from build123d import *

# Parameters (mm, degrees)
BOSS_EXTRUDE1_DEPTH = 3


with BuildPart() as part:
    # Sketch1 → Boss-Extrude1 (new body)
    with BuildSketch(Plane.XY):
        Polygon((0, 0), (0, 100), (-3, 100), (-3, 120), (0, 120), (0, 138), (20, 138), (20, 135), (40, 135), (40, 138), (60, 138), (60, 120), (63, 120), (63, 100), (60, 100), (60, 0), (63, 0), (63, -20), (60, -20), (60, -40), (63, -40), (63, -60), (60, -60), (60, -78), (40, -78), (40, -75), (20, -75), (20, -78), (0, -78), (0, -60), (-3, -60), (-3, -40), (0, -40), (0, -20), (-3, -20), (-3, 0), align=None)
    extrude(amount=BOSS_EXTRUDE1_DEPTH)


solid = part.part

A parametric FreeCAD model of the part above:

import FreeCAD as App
import Part
import Sketcher
from FreeCAD import Vector


def add_polygon(sketch, points):
    """Adds a closed chain of lines whose ends are joined by coincident constraints."""
    first, n = sketch.GeometryCount, len(points)
    for a, b in zip(points, points[1:] + points[:1]):
        sketch.addGeometry(Part.LineSegment(App.Vector(*a, 0), App.Vector(*b, 0)), False)
    for i in range(n):
        sketch.addConstraint(Sketcher.Constraint("Coincident", first + i, 2, first + (i + 1) % n, 1))

doc = App.newDocument("Part")
body = doc.addObject("PartDesign::Body", "Body")

sketch1 = doc.addObject("Sketcher::SketchObject", "Sketch")
body.addObject(sketch1)
sketch1.AttachmentSupport = (doc.XY_Plane, [""])
sketch1.MapMode = "FlatFace"
add_polygon(sketch1, [(0, 100), (0, 0), (-3, 0), (-3, -20), (0, -20), (0, -40), (-3, -40), (-3, -60), (0, -60), (0, -78), (20, -78), (20, -75), (40, -75), (40, -78), (60, -78), (60, -60), (63, -60), (63, -40), (60, -40), (60, -20), (63, -20), (63, 0), (60, 0), (60, 100), (63, 100), (63, 120), (60, 120), (60, 138), (40, 138), (40, 135), (20, 135), (20, 138), (0, 138), (0, 120), (-3, 120), (-3, 100)])
sketch1.addConstraint([
    Sketcher.Constraint("Vertical", 0),
    Sketcher.Constraint("Horizontal", 1),
    Sketcher.Constraint("Vertical", 2),
    Sketcher.Constraint("Horizontal", 3),
    Sketcher.Constraint("Vertical", 4),
    Sketcher.Constraint("Horizontal", 5),
    Sketcher.Constraint("Vertical", 6),
    Sketcher.Constraint("Horizontal", 7),
    Sketcher.Constraint("Vertical", 8),
    Sketcher.Constraint("Horizontal", 9),
    Sketcher.Constraint("Vertical", 10),
    Sketcher.Constraint("Horizontal", 11),
    Sketcher.Constraint("Vertical", 12),
    Sketcher.Constraint("Horizontal", 13),
    Sketcher.Constraint("Vertical", 14),
    Sketcher.Constraint("Horizontal", 15),
    Sketcher.Constraint("Vertical", 16),
    Sketcher.Constraint("Horizontal", 17),
    Sketcher.Constraint("Vertical", 18),
    Sketcher.Constraint("Horizontal", 19),
    Sketcher.Constraint("Vertical", 20),
    Sketcher.Constraint("Horizontal", 21),
    Sketcher.Constraint("Vertical", 22),
    Sketcher.Constraint("Horizontal", 23),
    Sketcher.Constraint("Vertical", 24),
    Sketcher.Constraint("Horizontal", 25),
    Sketcher.Constraint("Vertical", 26),
    Sketcher.Constraint("Horizontal", 27),
    Sketcher.Constraint("Vertical", 28),
    Sketcher.Constraint("Horizontal", 29),
    Sketcher.Constraint("Vertical", 30),
    Sketcher.Constraint("Horizontal", 31),
    Sketcher.Constraint("Vertical", 32),
    Sketcher.Constraint("Horizontal", 33),
    Sketcher.Constraint("Vertical", 34),
    Sketcher.Constraint("Horizontal", 35),
    Sketcher.Constraint("Coincident", 0, 2, -1, 1),
    Sketcher.Constraint("PointOnObject", 3, 2, -2),
    Sketcher.Constraint("PointOnObject", 7, 2, -2),
    Sketcher.Constraint("PointOnObject", 20, 2, -1),
    Sketcher.Constraint("PointOnObject", 31, 2, -2),
    Sketcher.Constraint("Horizontal", 9, 2, 12, 2),
    Sketcher.Constraint("Horizontal", 7, 2, 14, 2),
    Sketcher.Constraint("Horizontal", 5, 2, 16, 2),
    Sketcher.Constraint("Horizontal", 3, 2, 18, 2),
    Sketcher.Constraint("Horizontal", 27, 2, 30, 2),
    Sketcher.Constraint("Horizontal", 25, 2, 32, 2),
    Sketcher.Constraint("Horizontal", 23, 2, 34, 2),
    Sketcher.Constraint("Vertical", 2, 2, 5, 2),
    Sketcher.Constraint("Vertical", 14, 2, 17, 2),
    Sketcher.Constraint("Vertical", 16, 2, 19, 2),
    Sketcher.Constraint("Vertical", 18, 2, 21, 2),
    Sketcher.Constraint("Vertical", 20, 2, 23, 2),
    Sketcher.Constraint("Vertical", 22, 2, 25, 2),
    Sketcher.Constraint("Vertical", 12, 2, 27, 2),
    Sketcher.Constraint("Vertical", 10, 2, 29, 2),
    Sketcher.Constraint("Vertical", 6, 2, 33, 2),
    Sketcher.Constraint("Equal", 9, 11),
    Sketcher.Constraint("Equal", 11, 13),
    Sketcher.Constraint("Equal", 7, 15),
    Sketcher.Constraint("Equal", 31, 2),
    Sketcher.Constraint("Equal", 2, 4),
    Sketcher.Constraint("Equal", 4, 6),
    Sketcher.Constraint("Equal", 35, 10),
    Sketcher.Constraint("Equal", 20, 24),
    Sketcher.Constraint("Equal", 14, 26),
    Sketcher.Constraint("Equal", 12, 28),
    Sketcher.Constraint("DistanceX", 1, 2, 1, 1, 3.0),
    Sketcher.Constraint("DistanceX", 9, 1, 9, 2, 20.0),
    Sketcher.Constraint("DistanceY", 0, 2, 0, 1, 100.0),
    Sketcher.Constraint("DistanceY", 8, 2, 8, 1, 18.0),
])
pad1 = doc.addObject("PartDesign::Pad", "Pad")
body.addObject(pad1)
pad1.Profile = sketch1
pad1.Length = 3

doc.recompute()
